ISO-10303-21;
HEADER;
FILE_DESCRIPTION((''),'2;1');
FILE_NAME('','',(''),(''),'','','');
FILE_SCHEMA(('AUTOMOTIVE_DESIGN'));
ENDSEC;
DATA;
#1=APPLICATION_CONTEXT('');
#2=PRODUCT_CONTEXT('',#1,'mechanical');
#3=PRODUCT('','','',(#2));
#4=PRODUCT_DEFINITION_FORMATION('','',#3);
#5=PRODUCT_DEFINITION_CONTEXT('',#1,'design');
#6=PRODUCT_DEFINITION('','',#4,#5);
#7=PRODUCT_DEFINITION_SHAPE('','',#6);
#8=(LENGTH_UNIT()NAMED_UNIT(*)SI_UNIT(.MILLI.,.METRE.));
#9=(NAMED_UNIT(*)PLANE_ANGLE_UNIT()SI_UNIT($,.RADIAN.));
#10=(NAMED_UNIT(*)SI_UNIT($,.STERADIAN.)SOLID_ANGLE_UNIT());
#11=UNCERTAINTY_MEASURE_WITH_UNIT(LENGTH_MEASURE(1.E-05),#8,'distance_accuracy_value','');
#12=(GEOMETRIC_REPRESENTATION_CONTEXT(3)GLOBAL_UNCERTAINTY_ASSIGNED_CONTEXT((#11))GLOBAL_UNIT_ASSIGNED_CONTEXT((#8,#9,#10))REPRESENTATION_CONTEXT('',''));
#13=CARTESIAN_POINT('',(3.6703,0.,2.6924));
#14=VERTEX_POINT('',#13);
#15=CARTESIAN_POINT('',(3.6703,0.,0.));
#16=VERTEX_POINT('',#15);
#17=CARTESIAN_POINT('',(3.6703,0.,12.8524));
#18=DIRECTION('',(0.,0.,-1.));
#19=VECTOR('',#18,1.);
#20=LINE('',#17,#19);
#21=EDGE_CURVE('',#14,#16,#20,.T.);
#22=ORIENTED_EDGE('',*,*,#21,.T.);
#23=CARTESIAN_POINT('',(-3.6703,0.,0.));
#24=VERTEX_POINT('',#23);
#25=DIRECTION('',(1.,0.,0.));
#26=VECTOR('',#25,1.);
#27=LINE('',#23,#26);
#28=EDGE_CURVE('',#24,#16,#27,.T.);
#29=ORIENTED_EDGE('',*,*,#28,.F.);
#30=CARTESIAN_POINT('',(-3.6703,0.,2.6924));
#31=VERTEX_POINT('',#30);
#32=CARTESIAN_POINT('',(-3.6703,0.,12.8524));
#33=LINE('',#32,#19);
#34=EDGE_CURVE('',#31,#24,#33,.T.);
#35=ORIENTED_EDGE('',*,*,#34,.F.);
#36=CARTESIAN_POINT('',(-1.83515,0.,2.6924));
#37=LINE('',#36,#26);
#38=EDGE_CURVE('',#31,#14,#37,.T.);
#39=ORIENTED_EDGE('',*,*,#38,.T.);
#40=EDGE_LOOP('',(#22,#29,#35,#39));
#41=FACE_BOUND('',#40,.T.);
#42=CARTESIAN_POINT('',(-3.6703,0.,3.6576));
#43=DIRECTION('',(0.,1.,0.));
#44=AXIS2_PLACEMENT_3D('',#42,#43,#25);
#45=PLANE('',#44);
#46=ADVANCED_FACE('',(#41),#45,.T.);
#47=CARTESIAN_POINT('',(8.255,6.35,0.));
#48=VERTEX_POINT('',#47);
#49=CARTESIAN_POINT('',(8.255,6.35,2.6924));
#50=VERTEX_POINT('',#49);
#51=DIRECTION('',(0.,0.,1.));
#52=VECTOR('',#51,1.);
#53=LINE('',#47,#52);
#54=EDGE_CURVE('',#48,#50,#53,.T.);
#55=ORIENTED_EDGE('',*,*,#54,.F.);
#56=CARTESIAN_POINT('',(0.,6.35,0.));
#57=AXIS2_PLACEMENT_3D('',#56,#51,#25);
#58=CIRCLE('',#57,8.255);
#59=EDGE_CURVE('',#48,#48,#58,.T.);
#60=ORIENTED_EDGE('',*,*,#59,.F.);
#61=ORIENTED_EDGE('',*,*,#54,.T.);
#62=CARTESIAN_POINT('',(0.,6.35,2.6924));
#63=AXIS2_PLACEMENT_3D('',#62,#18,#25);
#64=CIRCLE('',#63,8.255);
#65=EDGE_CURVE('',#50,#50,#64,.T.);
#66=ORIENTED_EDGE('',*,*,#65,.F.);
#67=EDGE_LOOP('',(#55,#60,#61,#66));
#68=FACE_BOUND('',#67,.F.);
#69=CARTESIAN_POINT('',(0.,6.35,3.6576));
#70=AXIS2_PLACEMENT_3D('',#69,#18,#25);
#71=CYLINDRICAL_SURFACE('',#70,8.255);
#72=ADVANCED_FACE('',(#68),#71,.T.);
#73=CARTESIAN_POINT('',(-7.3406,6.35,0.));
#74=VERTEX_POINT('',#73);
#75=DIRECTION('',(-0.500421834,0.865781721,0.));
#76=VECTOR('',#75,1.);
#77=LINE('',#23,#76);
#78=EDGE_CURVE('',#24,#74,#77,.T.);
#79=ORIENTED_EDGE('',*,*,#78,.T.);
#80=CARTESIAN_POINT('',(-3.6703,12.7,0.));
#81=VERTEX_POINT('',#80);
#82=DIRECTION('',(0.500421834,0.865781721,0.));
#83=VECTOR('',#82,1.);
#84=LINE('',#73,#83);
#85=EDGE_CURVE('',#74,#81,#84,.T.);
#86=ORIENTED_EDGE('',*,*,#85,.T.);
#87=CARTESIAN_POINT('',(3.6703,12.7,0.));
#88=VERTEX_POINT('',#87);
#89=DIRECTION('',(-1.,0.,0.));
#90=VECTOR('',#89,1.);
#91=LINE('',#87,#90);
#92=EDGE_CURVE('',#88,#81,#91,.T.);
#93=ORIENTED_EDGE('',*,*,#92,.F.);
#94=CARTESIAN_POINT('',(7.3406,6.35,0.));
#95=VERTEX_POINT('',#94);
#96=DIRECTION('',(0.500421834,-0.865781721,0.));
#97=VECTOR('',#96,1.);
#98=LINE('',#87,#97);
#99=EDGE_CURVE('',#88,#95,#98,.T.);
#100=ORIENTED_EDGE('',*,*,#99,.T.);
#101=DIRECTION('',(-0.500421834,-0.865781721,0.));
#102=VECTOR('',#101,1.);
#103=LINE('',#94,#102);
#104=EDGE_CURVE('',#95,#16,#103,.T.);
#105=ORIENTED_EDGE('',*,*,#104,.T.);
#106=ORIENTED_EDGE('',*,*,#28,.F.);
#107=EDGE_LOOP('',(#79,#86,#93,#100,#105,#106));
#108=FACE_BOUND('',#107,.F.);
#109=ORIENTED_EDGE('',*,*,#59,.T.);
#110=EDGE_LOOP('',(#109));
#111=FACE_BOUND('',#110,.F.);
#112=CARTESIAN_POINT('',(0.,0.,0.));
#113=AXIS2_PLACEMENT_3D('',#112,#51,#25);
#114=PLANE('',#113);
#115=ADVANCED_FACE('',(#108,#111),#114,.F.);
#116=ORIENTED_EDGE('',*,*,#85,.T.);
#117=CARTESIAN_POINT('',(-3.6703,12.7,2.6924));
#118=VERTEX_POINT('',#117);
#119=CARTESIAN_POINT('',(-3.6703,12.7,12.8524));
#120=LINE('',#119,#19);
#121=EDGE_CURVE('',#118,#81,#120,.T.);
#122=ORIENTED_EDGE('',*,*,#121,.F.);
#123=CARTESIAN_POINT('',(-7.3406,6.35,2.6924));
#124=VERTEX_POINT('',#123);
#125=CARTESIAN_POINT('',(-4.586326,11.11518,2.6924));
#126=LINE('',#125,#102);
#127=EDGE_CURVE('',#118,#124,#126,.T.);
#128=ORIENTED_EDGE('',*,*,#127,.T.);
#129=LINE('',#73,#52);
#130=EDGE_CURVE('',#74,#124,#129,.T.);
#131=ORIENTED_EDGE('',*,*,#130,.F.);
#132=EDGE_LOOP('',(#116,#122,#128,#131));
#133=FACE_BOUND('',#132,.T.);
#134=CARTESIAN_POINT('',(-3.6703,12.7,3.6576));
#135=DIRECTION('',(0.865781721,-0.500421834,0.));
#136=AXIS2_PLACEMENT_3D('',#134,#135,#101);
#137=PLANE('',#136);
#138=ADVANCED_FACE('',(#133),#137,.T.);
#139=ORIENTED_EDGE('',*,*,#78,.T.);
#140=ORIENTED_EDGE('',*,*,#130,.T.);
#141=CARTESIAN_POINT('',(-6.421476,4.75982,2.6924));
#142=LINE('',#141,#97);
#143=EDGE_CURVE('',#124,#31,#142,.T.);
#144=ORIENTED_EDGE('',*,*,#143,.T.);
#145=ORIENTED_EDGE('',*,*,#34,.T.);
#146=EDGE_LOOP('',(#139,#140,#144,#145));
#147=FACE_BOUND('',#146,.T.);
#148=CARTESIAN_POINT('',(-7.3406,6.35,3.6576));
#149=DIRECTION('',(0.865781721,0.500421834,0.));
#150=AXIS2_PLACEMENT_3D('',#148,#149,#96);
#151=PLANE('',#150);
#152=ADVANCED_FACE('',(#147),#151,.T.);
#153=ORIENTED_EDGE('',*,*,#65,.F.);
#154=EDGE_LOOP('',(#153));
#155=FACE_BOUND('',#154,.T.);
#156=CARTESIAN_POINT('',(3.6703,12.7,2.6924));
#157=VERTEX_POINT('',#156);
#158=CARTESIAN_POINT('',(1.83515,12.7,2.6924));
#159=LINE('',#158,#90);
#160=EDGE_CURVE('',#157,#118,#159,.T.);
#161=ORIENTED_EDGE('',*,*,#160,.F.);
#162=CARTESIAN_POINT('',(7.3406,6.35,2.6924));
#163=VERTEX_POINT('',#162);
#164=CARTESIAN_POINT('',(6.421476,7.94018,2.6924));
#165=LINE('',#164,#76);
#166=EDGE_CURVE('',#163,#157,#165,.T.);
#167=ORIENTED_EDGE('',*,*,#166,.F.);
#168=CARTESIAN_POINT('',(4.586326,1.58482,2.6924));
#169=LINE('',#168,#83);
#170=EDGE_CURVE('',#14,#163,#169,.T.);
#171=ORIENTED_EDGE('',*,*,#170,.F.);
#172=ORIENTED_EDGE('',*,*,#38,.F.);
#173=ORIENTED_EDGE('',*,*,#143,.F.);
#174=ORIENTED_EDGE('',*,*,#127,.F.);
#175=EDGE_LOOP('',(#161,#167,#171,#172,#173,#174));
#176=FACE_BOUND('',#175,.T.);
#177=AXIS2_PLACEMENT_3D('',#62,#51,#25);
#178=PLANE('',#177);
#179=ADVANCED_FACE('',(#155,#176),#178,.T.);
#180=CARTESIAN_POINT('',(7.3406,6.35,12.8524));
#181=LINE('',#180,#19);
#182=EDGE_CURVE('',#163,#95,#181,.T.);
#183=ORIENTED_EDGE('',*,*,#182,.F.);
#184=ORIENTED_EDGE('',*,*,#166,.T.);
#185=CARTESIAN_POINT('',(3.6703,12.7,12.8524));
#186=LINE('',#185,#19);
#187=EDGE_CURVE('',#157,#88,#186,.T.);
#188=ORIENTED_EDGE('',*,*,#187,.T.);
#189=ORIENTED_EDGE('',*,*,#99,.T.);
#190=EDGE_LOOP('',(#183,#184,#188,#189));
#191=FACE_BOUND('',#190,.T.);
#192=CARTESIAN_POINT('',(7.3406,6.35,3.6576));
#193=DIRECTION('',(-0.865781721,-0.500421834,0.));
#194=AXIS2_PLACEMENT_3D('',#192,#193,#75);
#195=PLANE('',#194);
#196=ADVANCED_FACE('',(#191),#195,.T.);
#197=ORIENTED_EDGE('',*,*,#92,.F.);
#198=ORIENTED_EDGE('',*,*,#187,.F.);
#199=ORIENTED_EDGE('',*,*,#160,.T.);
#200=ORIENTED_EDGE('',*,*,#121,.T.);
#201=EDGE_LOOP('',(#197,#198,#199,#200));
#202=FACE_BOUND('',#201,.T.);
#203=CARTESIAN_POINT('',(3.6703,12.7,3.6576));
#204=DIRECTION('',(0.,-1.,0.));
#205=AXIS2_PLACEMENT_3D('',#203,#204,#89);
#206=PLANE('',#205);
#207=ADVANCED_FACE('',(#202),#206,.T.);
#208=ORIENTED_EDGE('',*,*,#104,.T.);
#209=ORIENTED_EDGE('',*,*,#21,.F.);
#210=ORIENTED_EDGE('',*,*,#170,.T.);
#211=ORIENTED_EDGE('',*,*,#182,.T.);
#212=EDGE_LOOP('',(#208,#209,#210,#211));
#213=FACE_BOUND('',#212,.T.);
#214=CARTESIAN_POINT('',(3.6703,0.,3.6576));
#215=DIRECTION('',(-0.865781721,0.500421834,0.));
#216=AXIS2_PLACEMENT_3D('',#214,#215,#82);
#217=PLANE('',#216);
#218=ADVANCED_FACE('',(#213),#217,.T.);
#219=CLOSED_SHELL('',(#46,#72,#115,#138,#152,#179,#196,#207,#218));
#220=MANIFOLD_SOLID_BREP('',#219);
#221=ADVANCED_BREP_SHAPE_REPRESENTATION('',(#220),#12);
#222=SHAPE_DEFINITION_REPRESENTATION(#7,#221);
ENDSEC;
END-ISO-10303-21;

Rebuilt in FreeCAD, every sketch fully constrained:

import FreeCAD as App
import Part
import Sketcher
Q = App.Units.Quantity


def add_polygon(sketch, points):
    """Adds a closed chain of lines whose ends are joined by coincident constraints."""
    first, n = sketch.GeometryCount, len(points)
    for a, b in zip(points, points[1:] + points[:1]):
        sketch.addGeometry(Part.LineSegment(App.Vector(*a, 0), App.Vector(*b, 0)), False)
    for i in range(n):
        sketch.addConstraint(Sketcher.Constraint("Coincident", first + i, 2, first + (i + 1) % n, 1))

doc = App.newDocument("Part")
body = doc.addObject("PartDesign::Body", "Body")

# Sketch on XY plane
sketch1 = body.newObject("Sketcher::SketchObject", "Sketch")
sketch1.AttachmentSupport = (doc.getObject("XY_Plane"), [""])
sketch1.MapMode = "FlatFace"
sketch1.addGeometry(Part.Circle(App.Vector(0, 6, 0), App.Vector(0, 0, 1), 8), False)  # 0
add_polygon(sketch1, [(-4, 13), (4, 13), (7, 6), (4, 0), (-4, 0), (-7, 6)])  # lines 1-6
sketch1.addConstraint(Sketcher.Constraint("Horizontal", 1))
sketch1.addConstraint(Sketcher.Constraint("Horizontal", 4))
sketch1.addConstraint(Sketcher.Constraint("Symmetric", 3, 2, 4, 2, -1, 1))
sketch1.addConstraint(Sketcher.Constraint("Symmetric", 2, 2, 5, 2, -2))
sketch1.addConstraint(Sketcher.Constraint("PointOnObject", 0, 3, -2))
sketch1.addConstraint(Sketcher.Constraint("Parallel", 2, 5))
sketch1.addConstraint(Sketcher.Constraint("Parallel", 3, 6))
sketch1.addConstraint(Sketcher.Constraint("Horizontal", 0, 3, 2, 2))
sketch1.addConstraint(Sketcher.Constraint("Vertical", 1, 2, 3, 2))
sketch1.addConstraint(Sketcher.Constraint("Diameter", 0, Q("0.65 in")))
sketch1.addConstraint(Sketcher.Constraint("DistanceY", -1, 1, 0, 3, Q("0.25 in")))
sketch1.addConstraint(Sketcher.Constraint("DistanceX", 1, 1, 1, 2, Q("0.289 in")))
sketch1.addConstraint(Sketcher.Constraint("DistanceX", -1, 1, 2, 2, Q("0.289 in")))
pad1 = body.newObject("PartDesign::Pad", "Pad")
pad1.Profile = sketch1
pad1.Length = Q("0.245 in")

# Sketch on XY plane
sketch2 = body.newObject("Sketcher::SketchObject", "Sketch001")
sketch2.AttachmentSupport = (doc.getObject("XY_Plane"), [""])
sketch2.MapMode = "FlatFace"
sketch2.AttachmentOffset = App.Placement(App.Vector(0, 0, 0.245 * 25.4), App.Rotation())
sketch2.addGeometry(Part.Circle(App.Vector(0, 6, 0), App.Vector(0, 0, 1), 8), False)  # 0
add_polygon(sketch2, [(4, 0), (-4, 0), (-7, 6), (-4, 13), (4, 13), (7, 6)])  # lines 1-6
sketch2.addConstraint(Sketcher.Constraint("Horizontal", 1))
sketch2.addConstraint(Sketcher.Constraint("Horizontal", 4))
sketch2.addConstraint(Sketcher.Constraint("Symmetric", 1, 2, 6, 2, -1, 1))
sketch2.addConstraint(Sketcher.Constraint("Symmetric", 2, 2, 5, 2, -2))
sketch2.addConstraint(Sketcher.Constraint("PointOnObject", 0, 3, -2))
sketch2.addConstraint(Sketcher.Constraint("Parallel", 2, 5))
sketch2.addConstraint(Sketcher.Constraint("Parallel", 3, 6))
sketch2.addConstraint(Sketcher.Constraint("Horizontal", 0, 3, 2, 2))
sketch2.addConstraint(Sketcher.Constraint("Vertical", 1, 2, 3, 2))
sketch2.addConstraint(Sketcher.Constraint("Diameter", 0, Q("0.65 in")))
sketch2.addConstraint(Sketcher.Constraint("DistanceY", -1, 1, 3, 2, Q("0.5 in")))
sketch2.addConstraint(Sketcher.Constraint("DistanceX", 1, 2, 1, 1, Q("0.289 in")))
sketch2.addConstraint(Sketcher.Constraint("DistanceX", 2, 2, -1, 1, Q("0.289 in")))
pad2 = body.newObject("PartDesign::Pad", "Pad001")
pad2.Profile = sketch2
pad2.Length = Q("0.13 in")

# Sketch on XY plane
sketch3 = body.newObject("Sketcher::SketchObject", "Sketch002")
sketch3.AttachmentSupport = (doc.getObject("XY_Plane"), [""])
sketch3.MapMode = "FlatFace"
sketch3.AttachmentOffset = App.Placement(App.Vector(0, 0, 0.375 * 25.4), App.Rotation())
sketch3.addGeometry(Part.Circle(App.Vector(0, 6, 0), App.Vector(0, 0, 1), 8), False)  # 0
add_polygon(sketch3, [(-4, 0), (-7, 6), (-4, 13), (4, 13), (7, 6), (4, 0)])  # lines 1-6
sketch3.addConstraint(Sketcher.Constraint("Horizontal", 3))
sketch3.addConstraint(Sketcher.Constraint("Horizontal", 6))
sketch3.addConstraint(Sketcher.Constraint("Symmetric", 5, 2, 6, 2, -1, 1))
sketch3.addConstraint(Sketcher.Constraint("Symmetric", 1, 2, 4, 2, -2))
sketch3.addConstraint(Sketcher.Constraint("PointOnObject", 0, 3, -2))
sketch3.addConstraint(Sketcher.Constraint("Parallel", 1, 4))
sketch3.addConstraint(Sketcher.Constraint("Parallel", 2, 5))
sketch3.addConstraint(Sketcher.Constraint("Horizontal", 0, 3, 1, 2))
sketch3.addConstraint(Sketcher.Constraint("Vertical", 3, 2, 5, 2))
sketch3.addConstraint(Sketcher.Constraint("Diameter", 0, Q("0.65 in")))
sketch3.addConstraint(Sketcher.Constraint("DistanceY", -1, 1, 2, 2, Q("0.5 in")))
sketch3.addConstraint(Sketcher.Constraint("DistanceX", 3, 1, 3, 2, Q("0.289 in")))
sketch3.addConstraint(Sketcher.Constraint("DistanceX", 1, 2, -1, 1, Q("0.289 in")))
pad3 = body.newObject("PartDesign::Pad", "Pad002")
pad3.Profile = sketch3
pad3.Length = Q("0.259 in")

# Sketch on XY plane
sketch4 = body.newObject("Sketcher::SketchObject", "Sketch003")
sketch4.AttachmentSupport = (doc.getObject("XY_Plane"), [""])
sketch4.MapMode = "FlatFace"
sketch4.AttachmentOffset = App.Placement(App.Vector(0, 0, 0.634 * 25.4), App.Rotation())
add_polygon(sketch4, [(15, 22), (-16, 22), (-16, -7), (15, -7)])  # lines 0-3
sketch4.addConstraint(Sketcher.Constraint("Horizontal", 0))
sketch4.addConstraint(Sketcher.Constraint("Vertical", 1))
sketch4.addConstraint(Sketcher.Constraint("Horizontal", 2))
sketch4.addConstraint(Sketcher.Constraint("Vertical", 3))
sketch4.addConstraint(Sketcher.Constraint("DistanceY", 1, 2, 1, 1, Q("1.1281 in")))
sketch4.addConstraint(Sketcher.Constraint("DistanceX", 0, 2, 0, 1, Q("31.472 mm")))
sketch4.addConstraint(Sketcher.Constraint("DistanceX", -1, 1, 2, 2, Q("0.5955 in")))
sketch4.addConstraint(Sketcher.Constraint("DistanceY", -1, 1, 0, 2, Q("22.1245 mm")))
pocket1 = body.newObject("PartDesign::Pocket", "Pocket")
pocket1.Profile = sketch4
pocket1.Length = Q("0.259 in")

# Sketch on XY plane
sketch5 = body.newObject("Sketcher::SketchObject", "Sketch004")
sketch5.AttachmentSupport = (doc.getObject("XY_Plane"), [""])
sketch5.MapMode = "FlatFace"
sketch5.AttachmentOffset = App.Placement(App.Vector(0, 0, 0.375 * 25.4), App.Rotation())
sketch5.addGeometry(Part.Circle(App.Vector(0, 6, 0), App.Vector(0, 0, 1), 8), False)  # 0
add_polygon(sketch5, [(-4, 0), (-7, 6), (-4, 13), (4, 13), (7, 6), (4, 0)])  # lines 1-6
sketch5.addConstraint(Sketcher.Constraint("Horizontal", 3))
sketch5.addConstraint(Sketcher.Constraint("Horizontal", 6))
sketch5.addConstraint(Sketcher.Constraint("Symmetric", 5, 2, 6, 2, -1, 1))
sketch5.addConstraint(Sketcher.Constraint("Symmetric", 1, 2, 4, 2, -2))
sketch5.addConstraint(Sketcher.Constraint("PointOnObject", 0, 3, -2))
sketch5.addConstraint(Sketcher.Constraint("Parallel", 1, 4))
sketch5.addConstraint(Sketcher.Constraint("Parallel", 2, 5))
sketch5.addConstraint(Sketcher.Constraint("Horizontal", 0, 3, 1, 2))
sketch5.addConstraint(Sketcher.Constraint("Vertical", 3, 2, 5, 2))
sketch5.addConstraint(Sketcher.Constraint("Diameter", 0, Q("0.65 in")))
sketch5.addConstraint(Sketcher.Constraint("DistanceY", -1, 1, 2, 2, Q("0.5 in")))
sketch5.addConstraint(Sketcher.Constraint("DistanceX", 3, 1, 3, 2, Q("0.289 in")))
sketch5.addConstraint(Sketcher.Constraint("DistanceX", 1, 2, -1, 1, Q("0.289 in")))
pad4 = body.newObject("PartDesign::Pad", "Pad003")
pad4.Profile = sketch5
pad4.Length = Q("0.625 in")

# Sketch on XY plane
sketch6 = body.newObject("Sketcher::SketchObject", "Sketch005")
sketch6.AttachmentSupport = (doc.getObject("XY_Plane"), [""])
sketch6.MapMode = "FlatFace"
sketch6.AttachmentOffset = App.Placement(App.Vector(0, 0, 1 * 25.4), App.Rotation())
sketch6.addGeometry(Part.Circle(App.Vector(0, 6, 0), App.Vector(0, 0, 1), 8), False)  # 0
add_polygon(sketch6, [(-4, 0), (-7, 6), (-4, 13), (4, 13), (7, 6), (4, 0)])  # lines 1-6
sketch6.addConstraint(Sketcher.Constraint("Horizontal", 3))
sketch6.addConstraint(Sketcher.Constraint("Horizontal", 6))
sketch6.addConstraint(Sketcher.Constraint("Symmetric", 5, 2, 6, 2, -1, 1))
sketch6.addConstraint(Sketcher.Constraint("Symmetric", 1, 2, 4, 2, -2))
sketch6.addConstraint(Sketcher.Constraint("PointOnObject", 0, 3, -2))
sketch6.addConstraint(Sketcher.Constraint("Parallel", 1, 4))
sketch6.addConstraint(Sketcher.Constraint("Parallel", 2, 5))
sketch6.addConstraint(Sketcher.Constraint("Horizontal", 0, 3, 1, 2))
sketch6.addConstraint(Sketcher.Constraint("Vertical", 3, 2, 5, 2))
sketch6.addConstraint(Sketcher.Constraint("Diameter", 0, Q("0.65 in")))
sketch6.addConstraint(Sketcher.Constraint("DistanceY", -1, 1, 2, 2, Q("0.5 in")))
sketch6.addConstraint(Sketcher.Constraint("DistanceX", 3, 1, 3, 2, Q("0.289 in")))
sketch6.addConstraint(Sketcher.Constraint("DistanceX", 1, 2, -1, 1, Q("0.289 in")))
pocket2 = body.newObject("PartDesign::Pocket", "Pocket001")
pocket2.Profile = sketch6
pocket2.Length = Q("0.856 in")

# Sketch on XY plane
sketch7 = body.newObject("Sketcher::SketchObject", "Sketch006")
sketch7.AttachmentSupport = (doc.getObject("XY_Plane"), [""])
sketch7.MapMode = "FlatFace"
sketch7.AttachmentOffset = App.Placement(App.Vector(0, 0, 0.144 * 25.4), App.Rotation())
sketch7.addGeometry(Part.Circle(App.Vector(0, 6, 0), App.Vector(0, 0, 1), 8), False)  # 0
add_polygon(sketch7, [(-4, 0), (-7, 6), (-4, 13), (4, 13), (7, 6), (4, 0)])  # lines 1-6
sketch7.addConstraint(Sketcher.Constraint("Horizontal", 3))
sketch7.addConstraint(Sketcher.Constraint("Horizontal", 6))
sketch7.addConstraint(Sketcher.Constraint("Symmetric", 5, 2, 6, 2, -1, 1))
sketch7.addConstraint(Sketcher.Constraint("Symmetric", 1, 2, 4, 2, -2))
sketch7.addConstraint(Sketcher.Constraint("PointOnObject", 0, 3, -2))
sketch7.addConstraint(Sketcher.Constraint("Parallel", 1, 4))
sketch7.addConstraint(Sketcher.Constraint("Parallel", 2, 5))
sketch7.addConstraint(Sketcher.Constraint("Horizontal", 0, 3, 1, 2))
sketch7.addConstraint(Sketcher.Constraint("Vertical", 3, 2, 5, 2))
sketch7.addConstraint(Sketcher.Constraint("Diameter", 0, Q("0.65 in")))
sketch7.addConstraint(Sketcher.Constraint("DistanceY", -1, 1, 2, 2, Q("0.5 in")))
sketch7.addConstraint(Sketcher.Constraint("DistanceX", 3, 1, 3, 2, Q("0.289 in")))
sketch7.addConstraint(Sketcher.Constraint("DistanceX", 1, 2, -1, 1, Q("0.289 in")))
pad5 = body.newObject("PartDesign::Pad", "Pad004")
pad5.Profile = sketch7
pad5.Length = Q("0.362 in")

# Sketch on XY plane
sketch8 = body.newObject("Sketcher::SketchObject", "Sketch007")
sketch8.AttachmentSupport = (doc.getObject("XY_Plane"), [""])
sketch8.MapMode = "FlatFace"
sketch8.AttachmentOffset = App.Placement(App.Vector(0, 0, 0.506 * 25.4), App.Rotation())
add_polygon(sketch8, [(14, 18), (-11, 18), (-11, -5), (14, -5)])  # lines 0-3
sketch8.addConstraint(Sketcher.Constraint("Horizontal", 0))
sketch8.addConstraint(Sketcher.Constraint("Vertical", 1))
sketch8.addConstraint(Sketcher.Constraint("Horizontal", 2))
sketch8.addConstraint(Sketcher.Constraint("Vertical", 3))
sketch8.addConstraint(Sketcher.Constraint("DistanceX", 0, 2, 0, 1, Q("0.9757 in")))
sketch8.addConstraint(Sketcher.Constraint("DistanceY", 1, 2, 1, 1, Q("23.1972 mm")))
sketch8.addConstraint(Sketcher.Constraint("DistanceX", 0, 2, -1, 1, Q("10.961 mm")))
sketch8.addConstraint(Sketcher.Constraint("DistanceY", -1, 1, 0, 2, Q("18.3372 mm")))
pocket3 = body.newObject("PartDesign::Pocket", "Pocket002")
pocket3.Profile = sketch8
pocket3.Length = Q("0.4 in")

doc.recompute()
